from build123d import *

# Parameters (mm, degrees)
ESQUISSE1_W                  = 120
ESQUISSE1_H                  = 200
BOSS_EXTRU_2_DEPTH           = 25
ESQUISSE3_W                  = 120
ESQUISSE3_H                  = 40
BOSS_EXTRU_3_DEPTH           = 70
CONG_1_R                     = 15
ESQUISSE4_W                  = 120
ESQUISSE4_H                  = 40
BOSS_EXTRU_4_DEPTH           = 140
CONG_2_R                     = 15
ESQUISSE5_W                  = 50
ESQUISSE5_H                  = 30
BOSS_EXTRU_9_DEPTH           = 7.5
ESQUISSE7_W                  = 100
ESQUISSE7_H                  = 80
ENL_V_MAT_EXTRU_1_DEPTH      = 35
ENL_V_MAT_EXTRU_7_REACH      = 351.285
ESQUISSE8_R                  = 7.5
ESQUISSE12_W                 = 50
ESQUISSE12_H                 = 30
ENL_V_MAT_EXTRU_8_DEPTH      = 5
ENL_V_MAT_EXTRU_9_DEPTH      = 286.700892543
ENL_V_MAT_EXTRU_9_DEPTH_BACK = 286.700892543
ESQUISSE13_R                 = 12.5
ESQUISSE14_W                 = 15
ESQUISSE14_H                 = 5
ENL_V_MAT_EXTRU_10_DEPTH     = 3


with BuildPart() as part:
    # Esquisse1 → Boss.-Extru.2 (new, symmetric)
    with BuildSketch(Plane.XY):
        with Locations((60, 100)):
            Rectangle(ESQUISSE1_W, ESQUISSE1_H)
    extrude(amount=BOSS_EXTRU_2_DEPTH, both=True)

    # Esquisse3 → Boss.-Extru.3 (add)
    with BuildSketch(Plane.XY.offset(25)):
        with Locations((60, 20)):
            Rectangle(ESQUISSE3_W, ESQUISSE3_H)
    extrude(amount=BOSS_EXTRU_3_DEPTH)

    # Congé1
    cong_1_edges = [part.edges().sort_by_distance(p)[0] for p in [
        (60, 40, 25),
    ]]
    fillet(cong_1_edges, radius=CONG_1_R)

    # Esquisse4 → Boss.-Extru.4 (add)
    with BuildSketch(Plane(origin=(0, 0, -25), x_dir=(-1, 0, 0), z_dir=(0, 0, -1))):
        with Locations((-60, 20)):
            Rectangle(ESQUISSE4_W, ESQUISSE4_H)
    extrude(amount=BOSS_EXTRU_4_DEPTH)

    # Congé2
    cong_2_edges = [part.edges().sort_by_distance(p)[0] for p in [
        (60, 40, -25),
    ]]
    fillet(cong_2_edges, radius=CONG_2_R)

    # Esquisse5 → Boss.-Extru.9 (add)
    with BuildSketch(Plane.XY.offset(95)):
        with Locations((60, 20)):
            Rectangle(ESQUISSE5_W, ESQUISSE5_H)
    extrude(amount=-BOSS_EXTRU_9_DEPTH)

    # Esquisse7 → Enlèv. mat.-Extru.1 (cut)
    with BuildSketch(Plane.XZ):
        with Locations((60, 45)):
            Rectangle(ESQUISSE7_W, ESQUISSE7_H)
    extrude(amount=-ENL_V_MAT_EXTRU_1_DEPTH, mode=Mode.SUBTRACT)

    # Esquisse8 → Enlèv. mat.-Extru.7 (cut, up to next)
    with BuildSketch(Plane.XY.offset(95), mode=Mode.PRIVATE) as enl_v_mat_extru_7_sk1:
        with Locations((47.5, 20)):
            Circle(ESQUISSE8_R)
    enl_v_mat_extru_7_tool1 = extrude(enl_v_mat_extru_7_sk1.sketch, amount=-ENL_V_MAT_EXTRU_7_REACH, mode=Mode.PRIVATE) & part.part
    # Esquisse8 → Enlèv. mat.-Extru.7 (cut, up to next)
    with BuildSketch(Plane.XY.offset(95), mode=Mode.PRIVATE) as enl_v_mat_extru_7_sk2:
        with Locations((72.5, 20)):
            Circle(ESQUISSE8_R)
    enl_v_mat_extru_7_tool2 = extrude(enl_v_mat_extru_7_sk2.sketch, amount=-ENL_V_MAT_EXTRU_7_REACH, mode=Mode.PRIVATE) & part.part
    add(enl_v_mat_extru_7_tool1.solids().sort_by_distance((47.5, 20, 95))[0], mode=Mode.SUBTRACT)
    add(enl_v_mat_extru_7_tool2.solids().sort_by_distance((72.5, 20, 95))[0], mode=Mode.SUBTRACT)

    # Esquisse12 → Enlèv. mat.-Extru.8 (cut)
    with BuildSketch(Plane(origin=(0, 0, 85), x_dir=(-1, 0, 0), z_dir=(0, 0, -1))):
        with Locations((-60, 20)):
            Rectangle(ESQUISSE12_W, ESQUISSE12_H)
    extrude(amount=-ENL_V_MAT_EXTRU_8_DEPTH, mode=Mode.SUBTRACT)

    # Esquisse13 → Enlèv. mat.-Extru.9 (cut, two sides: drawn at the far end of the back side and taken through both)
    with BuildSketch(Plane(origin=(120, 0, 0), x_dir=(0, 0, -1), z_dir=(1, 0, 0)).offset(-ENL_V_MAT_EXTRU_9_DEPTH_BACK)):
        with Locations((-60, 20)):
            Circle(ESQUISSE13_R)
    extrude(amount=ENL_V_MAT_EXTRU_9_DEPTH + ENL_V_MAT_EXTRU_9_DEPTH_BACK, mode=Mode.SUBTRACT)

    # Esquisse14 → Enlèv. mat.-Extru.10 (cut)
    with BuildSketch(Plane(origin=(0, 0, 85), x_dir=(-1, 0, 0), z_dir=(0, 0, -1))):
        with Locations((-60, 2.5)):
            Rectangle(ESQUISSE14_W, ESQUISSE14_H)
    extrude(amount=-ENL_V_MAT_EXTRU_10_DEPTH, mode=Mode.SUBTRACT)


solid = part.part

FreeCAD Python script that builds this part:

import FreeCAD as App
import Part
import Sketcher


def edges_at(feature, points):
    """Names of the edges that pass closest to the given points."""
    edges = feature.Shape.Edges
    near = lambda p: min(range(len(edges)), key=lambda i: edges[i].distToShape(Part.Vertex(*p))[0])
    return sorted({f"Edge{near(p) + 1}" for p in points})

doc = App.newDocument("Part")
body = doc.addObject("PartDesign::Body", "Body")

# Sketch on XY plane
sketch1 = body.newObject("Sketcher::SketchObject", "Sketch")
sketch1.AttachmentSupport = (doc.getObject("XY_Plane"), [""])
sketch1.MapMode = "FlatFace"
sketch1.addGeometry([
    Part.LineSegment(App.Vector(0, 200, 0), App.Vector(0, 0, 0)),
    Part.LineSegment(App.Vector(0, 0, 0), App.Vector(120, 0, 0)),
    Part.LineSegment(App.Vector(120, 0, 0), App.Vector(120, 200, 0)),
    Part.LineSegment(App.Vector(120, 200, 0), App.Vector(0, 200, 0)),
], False)
sketch1.addConstraint([
    Sketcher.Constraint("Coincident", 0, 2, 1, 1),
    Sketcher.Constraint("Coincident", 1, 2, 2, 1),
    Sketcher.Constraint("Coincident", 2, 2, 3, 1),
    Sketcher.Constraint("Coincident", 3, 2, 0, 1),
    Sketcher.Constraint("Vertical", 0),
    Sketcher.Constraint("Horizontal", 1),
    Sketcher.Constraint("Vertical", 2),
    Sketcher.Constraint("Horizontal", 3),
    Sketcher.Constraint("Coincident", 0, 2, -1, 1),
    Sketcher.Constraint("DistanceX", 1, 1, 1, 2, 120.0),
    Sketcher.Constraint("DistanceY", 0, 2, 0, 1, 200.0),
])
pad1 = body.newObject("PartDesign::Pad", "Pad")
pad1.Profile = sketch1
pad1.Length = 50
pad1.Midplane = True

# Sketch on XY plane
sketch2 = body.newObject("Sketcher::SketchObject", "Sketch001")
sketch2.AttachmentSupport = (doc.getObject("XY_Plane"), [""])
sketch2.MapMode = "FlatFace"
sketch2.AttachmentOffset = App.Placement(App.Vector(0, 0, 25), App.Rotation())
sketch2.addGeometry([
    Part.LineSegment(App.Vector(0, 40, 0), App.Vector(0, 0, 0)),
    Part.LineSegment(App.Vector(0, 0, 0), App.Vector(120, 0, 0)),
    Part.LineSegment(App.Vector(120, 0, 0), App.Vector(120, 40, 0)),
    Part.LineSegment(App.Vector(120, 40, 0), App.Vector(0, 40, 0)),
], False)
sketch2.addConstraint([
    Sketcher.Constraint("Coincident", 0, 2, 1, 1),
    Sketcher.Constraint("Coincident", 1, 2, 2, 1),
    Sketcher.Constraint("Coincident", 2, 2, 3, 1),
    Sketcher.Constraint("Coincident", 3, 2, 0, 1),
    Sketcher.Constraint("Vertical", 0),
    Sketcher.Constraint("Horizontal", 1),
    Sketcher.Constraint("Vertical", 2),
    Sketcher.Constraint("Horizontal", 3),
    Sketcher.Constraint("Coincident", 0, 2, -1, 1),
    Sketcher.Constraint("DistanceX", 1, 1, 1, 2, 120.0),
    Sketcher.Constraint("DistanceY", 0, 2, 0, 1, 40.0),
])
pad2 = body.newObject("PartDesign::Pad", "Pad001")
pad2.Profile = sketch2
pad2.Length = 70
doc.recompute()

fillet = body.newObject("PartDesign::Fillet", "Fillet")
fillet.Base = (pad2, edges_at(pad2, [(60, 40, 25)]))
fillet.Radius = 15

# Sketch on XY plane
sketch3 = body.newObject("Sketcher::SketchObject", "Sketch002")
sketch3.AttachmentSupport = (doc.getObject("XY_Plane"), [""])
sketch3.MapMode = "FlatFace"
sketch3.AttachmentOffset = App.Placement(App.Vector(0, 0, -25), App.Rotation())
sketch3.addGeometry([
    Part.LineSegment(App.Vector(120, 40, 0), App.Vector(120, 0, 0)),
    Part.LineSegment(App.Vector(120, 0, 0), App.Vector(0, 0, 0)),
    Part.LineSegment(App.Vector(0, 0, 0), App.Vector(0, 40, 0)),
    Part.LineSegment(App.Vector(0, 40, 0), App.Vector(120, 40, 0)),
], False)
sketch3.addConstraint([
    Sketcher.Constraint("Coincident", 0, 2, 1, 1),
    Sketcher.Constraint("Coincident", 1, 2, 2, 1),
    Sketcher.Constraint("Coincident", 2, 2, 3, 1),
    Sketcher.Constraint("Coincident", 3, 2, 0, 1),
    Sketcher.Constraint("Vertical", 0),
    Sketcher.Constraint("Horizontal", 1),
    Sketcher.Constraint("Vertical", 2),
    Sketcher.Constraint("Horizontal", 3),
    Sketcher.Constraint("Coincident", 1, 2, -1, 1),
    Sketcher.Constraint("DistanceX", 1, 2, 1, 1, 120.0),
    Sketcher.Constraint("DistanceY", 0, 2, 0, 1, 40.0),
])
pad3 = body.newObject("PartDesign::Pad", "Pad002")
pad3.Profile = sketch3
pad3.Length = 140
pad3.Reversed = True
doc.recompute()

fillet2 = body.newObject("PartDesign::Fillet", "Fillet001")
fillet2.Base = (pad3, edges_at(pad3, [(60, 40, -25)]))
fillet2.Radius = 15

# Sketch on XY plane
sketch4 = body.newObject("Sketcher::SketchObject", "Sketch003")
sketch4.AttachmentSupport = (doc.getObject("XY_Plane"), [""])
sketch4.MapMode = "FlatFace"
sketch4.AttachmentOffset = App.Placement(App.Vector(0, 0, 95), App.Rotation())
sketch4.addGeometry([
    Part.LineSegment(App.Vector(35, 35, 0), App.Vector(35, 5, 0)),
    Part.LineSegment(App.Vector(35, 5, 0), App.Vector(85, 5, 0)),
    Part.LineSegment(App.Vector(85, 5, 0), App.Vector(85, 35, 0)),
    Part.LineSegment(App.Vector(85, 35, 0), App.Vector(35, 35, 0)),
], False)
sketch4.addConstraint([
    Sketcher.Constraint("Coincident", 0, 2, 1, 1),
    Sketcher.Constraint("Coincident", 1, 2, 2, 1),
    Sketcher.Constraint("Coincident", 2, 2, 3, 1),
    Sketcher.Constraint("Coincident", 3, 2, 0, 1),
    Sketcher.Constraint("Vertical", 0),
    Sketcher.Constraint("Horizontal", 1),
    Sketcher.Constraint("Vertical", 2),
    Sketcher.Constraint("Horizontal", 3),
    Sketcher.Constraint("DistanceX", 1, 1, 1, 2, 50.0),
    Sketcher.Constraint("DistanceY", 0, 2, 0, 1, 30.0),
    Sketcher.Constraint("DistanceX", -1, 1, 0, 2, 35.0),
    Sketcher.Constraint("DistanceY", -1, 1, 0, 2, 5.0),
])
pad4 = body.newObject("PartDesign::Pad", "Pad003")
pad4.Profile = sketch4
pad4.Length = 7.5
pad4.Reversed = True

# Sketch on XZ plane
sketch5 = body.newObject("Sketcher::SketchObject", "Sketch004")
sketch5.AttachmentSupport = (doc.getObject("XZ_Plane"), [""])
sketch5.MapMode = "FlatFace"
sketch5.addGeometry([
    Part.LineSegment(App.Vector(10, 85, 0), App.Vector(10, 5, 0)),
    Part.LineSegment(App.Vector(10, 5, 0), App.Vector(110, 5, 0)),
    Part.LineSegment(App.Vector(110, 5, 0), App.Vector(110, 85, 0)),
    Part.LineSegment(App.Vector(110, 85, 0), App.Vector(10, 85, 0)),
], False)
sketch5.addConstraint([
    Sketcher.Constraint("Coincident", 0, 2, 1, 1),
    Sketcher.Constraint("Coincident", 1, 2, 2, 1),
    Sketcher.Constraint("Coincident", 2, 2, 3, 1),
    Sketcher.Constraint("Coincident", 3, 2, 0, 1),
    Sketcher.Constraint("Vertical", 0),
    Sketcher.Constraint("Horizontal", 1),
    Sketcher.Constraint("Vertical", 2),
    Sketcher.Constraint("Horizontal", 3),
    Sketcher.Constraint("DistanceX", 1, 1, 1, 2, 100.0),
    Sketcher.Constraint("DistanceY", 0, 2, 0, 1, 80.0),
    Sketcher.Constraint("DistanceX", -1, 1, 0, 2, 10.0),
    Sketcher.Constraint("DistanceY", -1, 1, 0, 2, 5.0),
])
pocket1 = body.newObject("PartDesign::Pocket", "Pocket")
pocket1.Profile = sketch5
pocket1.Length = 35

# Sketch on XY plane
sketch6 = body.newObject("Sketcher::SketchObject", "Sketch005")
sketch6.AttachmentSupport = (doc.getObject("XY_Plane"), [""])
sketch6.MapMode = "FlatFace"
sketch6.AttachmentOffset = App.Placement(App.Vector(0, 0, 95), App.Rotation())
sketch6.addGeometry(Part.Circle(App.Vector(48, 20, 0), App.Vector(0, 0, 1), 8), False)
sketch6.addConstraint([
    Sketcher.Constraint("Diameter", 0, 15.0),
    Sketcher.Constraint("DistanceY", -1, 1, 0, 3, 20.0),
    Sketcher.Constraint("DistanceX", -1, 1, 0, 3, 47.5),
])
pocket2 = body.newObject("PartDesign::Pocket", "Pocket001")
pocket2.Profile = sketch6
pocket2.Type = "UpToFirst"

# Sketch on XY plane
sketch7 = body.newObject("Sketcher::SketchObject", "Sketch006")
sketch7.AttachmentSupport = (doc.getObject("XY_Plane"), [""])
sketch7.MapMode = "FlatFace"
sketch7.AttachmentOffset = App.Placement(App.Vector(0, 0, 95), App.Rotation())
sketch7.addGeometry(Part.Circle(App.Vector(72, 20, 0), App.Vector(0, 0, 1), 8), False)
sketch7.addConstraint([
    Sketcher.Constraint("Diameter", 0, 15.0),
    Sketcher.Constraint("DistanceY", -1, 1, 0, 3, 20.0),
    Sketcher.Constraint("DistanceX", -1, 1, 0, 3, 72.5),
])
pocket3 = body.newObject("PartDesign::Pocket", "Pocket002")
pocket3.Profile = sketch7
pocket3.Type = "UpToFirst"

# Sketch on XY plane
sketch8 = body.newObject("Sketcher::SketchObject", "Sketch007")
sketch8.AttachmentSupport = (doc.getObject("XY_Plane"), [""])
sketch8.MapMode = "FlatFace"
sketch8.AttachmentOffset = App.Placement(App.Vector(0, 0, 85), App.Rotation())
sketch8.addGeometry([
    Part.LineSegment(App.Vector(85, 35, 0), App.Vector(85, 5, 0)),
    Part.LineSegment(App.Vector(85, 5, 0), App.Vector(35, 5, 0)),
    Part.LineSegment(App.Vector(35, 5, 0), App.Vector(35, 35, 0)),
    Part.LineSegment(App.Vector(35, 35, 0), App.Vector(85, 35, 0)),
], False)
sketch8.addConstraint([
    Sketcher.Constraint("Coincident", 0, 2, 1, 1),
    Sketcher.Constraint("Coincident", 1, 2, 2, 1),
    Sketcher.Constraint("Coincident", 2, 2, 3, 1),
    Sketcher.Constraint("Coincident", 3, 2, 0, 1),
    Sketcher.Constraint("Vertical", 0),
    Sketcher.Constraint("Horizontal", 1),
    Sketcher.Constraint("Vertical", 2),
    Sketcher.Constraint("Horizontal", 3),
    Sketcher.Constraint("DistanceX", 1, 2, 1, 1, 50.0),
    Sketcher.Constraint("DistanceY", 0, 2, 0, 1, 30.0),
    Sketcher.Constraint("DistanceX", -1, 1, 0, 2, 85.0),
    Sketcher.Constraint("DistanceY", -1, 1, 0, 2, 5.0),
])
pocket4 = body.newObject("PartDesign::Pocket", "Pocket003")
pocket4.Profile = sketch8
pocket4.Length = 5
pocket4.Reversed = True

# Sketch on YZ plane
sketch9 = body.newObject("Sketcher::SketchObject", "Sketch008")
sketch9.AttachmentSupport = (doc.getObject("YZ_Plane"), [""])
sketch9.MapMode = "FlatFace"
sketch9.AttachmentOffset = App.Placement(App.Vector(0, 0, 120), App.Rotation())
sketch9.addGeometry(Part.Circle(App.Vector(20, 60, 0), App.Vector(0, 0, 1), 12), False)
sketch9.addConstraint([
    Sketcher.Constraint("Diameter", 0, 25.0),
    Sketcher.Constraint("DistanceX", -1, 1, 0, 3, 20.0),
    Sketcher.Constraint("DistanceY", -1, 1, 0, 3, 60.0),
])
pocket5 = body.newObject("PartDesign::Pocket", "Pocket004")
pocket5.Profile = sketch9
pocket5.Type = "ThroughAll"
pocket5.Midplane = True

# Sketch on XY plane
sketch10 = body.newObject("Sketcher::SketchObject", "Sketch009")
sketch10.AttachmentSupport = (doc.getObject("XY_Plane"), [""])
sketch10.MapMode = "FlatFace"
sketch10.AttachmentOffset = App.Placement(App.Vector(0, 0, 85), App.Rotation())
sketch10.addGeometry([
    Part.LineSegment(App.Vector(68, 5, 0), App.Vector(68, 0, 0)),
    Part.LineSegment(App.Vector(68, 0, 0), App.Vector(52, 0, 0)),
    Part.LineSegment(App.Vector(52, 0, 0), App.Vector(52, 5, 0)),
    Part.LineSegment(App.Vector(52, 5, 0), App.Vector(68, 5, 0)),
], False)
sketch10.addConstraint([
    Sketcher.Constraint("Coincident", 0, 2, 1, 1),
    Sketcher.Constraint("Coincident", 1, 2, 2, 1),
    Sketcher.Constraint("Coincident", 2, 2, 3, 1),
    Sketcher.Constraint("Coincident", 3, 2, 0, 1),
    Sketcher.Constraint("Vertical", 0),
    Sketcher.Constraint("Horizontal", 1),
    Sketcher.Constraint("Vertical", 2),
    Sketcher.Constraint("Horizontal", 3),
    Sketcher.Constraint("PointOnObject", 0, 2, -1),
    Sketcher.Constraint("DistanceX", 1, 2, 1, 1, 15.0),
    Sketcher.Constraint("DistanceY", 0, 2, 0, 1, 5.0),
    Sketcher.Constraint("DistanceX", -1, 1, 0, 2, 67.5),
])
pocket6 = body.newObject("PartDesign::Pocket", "Pocket005")
pocket6.Profile = sketch10
pocket6.Length = 3
pocket6.Reversed = True

doc.recompute()
